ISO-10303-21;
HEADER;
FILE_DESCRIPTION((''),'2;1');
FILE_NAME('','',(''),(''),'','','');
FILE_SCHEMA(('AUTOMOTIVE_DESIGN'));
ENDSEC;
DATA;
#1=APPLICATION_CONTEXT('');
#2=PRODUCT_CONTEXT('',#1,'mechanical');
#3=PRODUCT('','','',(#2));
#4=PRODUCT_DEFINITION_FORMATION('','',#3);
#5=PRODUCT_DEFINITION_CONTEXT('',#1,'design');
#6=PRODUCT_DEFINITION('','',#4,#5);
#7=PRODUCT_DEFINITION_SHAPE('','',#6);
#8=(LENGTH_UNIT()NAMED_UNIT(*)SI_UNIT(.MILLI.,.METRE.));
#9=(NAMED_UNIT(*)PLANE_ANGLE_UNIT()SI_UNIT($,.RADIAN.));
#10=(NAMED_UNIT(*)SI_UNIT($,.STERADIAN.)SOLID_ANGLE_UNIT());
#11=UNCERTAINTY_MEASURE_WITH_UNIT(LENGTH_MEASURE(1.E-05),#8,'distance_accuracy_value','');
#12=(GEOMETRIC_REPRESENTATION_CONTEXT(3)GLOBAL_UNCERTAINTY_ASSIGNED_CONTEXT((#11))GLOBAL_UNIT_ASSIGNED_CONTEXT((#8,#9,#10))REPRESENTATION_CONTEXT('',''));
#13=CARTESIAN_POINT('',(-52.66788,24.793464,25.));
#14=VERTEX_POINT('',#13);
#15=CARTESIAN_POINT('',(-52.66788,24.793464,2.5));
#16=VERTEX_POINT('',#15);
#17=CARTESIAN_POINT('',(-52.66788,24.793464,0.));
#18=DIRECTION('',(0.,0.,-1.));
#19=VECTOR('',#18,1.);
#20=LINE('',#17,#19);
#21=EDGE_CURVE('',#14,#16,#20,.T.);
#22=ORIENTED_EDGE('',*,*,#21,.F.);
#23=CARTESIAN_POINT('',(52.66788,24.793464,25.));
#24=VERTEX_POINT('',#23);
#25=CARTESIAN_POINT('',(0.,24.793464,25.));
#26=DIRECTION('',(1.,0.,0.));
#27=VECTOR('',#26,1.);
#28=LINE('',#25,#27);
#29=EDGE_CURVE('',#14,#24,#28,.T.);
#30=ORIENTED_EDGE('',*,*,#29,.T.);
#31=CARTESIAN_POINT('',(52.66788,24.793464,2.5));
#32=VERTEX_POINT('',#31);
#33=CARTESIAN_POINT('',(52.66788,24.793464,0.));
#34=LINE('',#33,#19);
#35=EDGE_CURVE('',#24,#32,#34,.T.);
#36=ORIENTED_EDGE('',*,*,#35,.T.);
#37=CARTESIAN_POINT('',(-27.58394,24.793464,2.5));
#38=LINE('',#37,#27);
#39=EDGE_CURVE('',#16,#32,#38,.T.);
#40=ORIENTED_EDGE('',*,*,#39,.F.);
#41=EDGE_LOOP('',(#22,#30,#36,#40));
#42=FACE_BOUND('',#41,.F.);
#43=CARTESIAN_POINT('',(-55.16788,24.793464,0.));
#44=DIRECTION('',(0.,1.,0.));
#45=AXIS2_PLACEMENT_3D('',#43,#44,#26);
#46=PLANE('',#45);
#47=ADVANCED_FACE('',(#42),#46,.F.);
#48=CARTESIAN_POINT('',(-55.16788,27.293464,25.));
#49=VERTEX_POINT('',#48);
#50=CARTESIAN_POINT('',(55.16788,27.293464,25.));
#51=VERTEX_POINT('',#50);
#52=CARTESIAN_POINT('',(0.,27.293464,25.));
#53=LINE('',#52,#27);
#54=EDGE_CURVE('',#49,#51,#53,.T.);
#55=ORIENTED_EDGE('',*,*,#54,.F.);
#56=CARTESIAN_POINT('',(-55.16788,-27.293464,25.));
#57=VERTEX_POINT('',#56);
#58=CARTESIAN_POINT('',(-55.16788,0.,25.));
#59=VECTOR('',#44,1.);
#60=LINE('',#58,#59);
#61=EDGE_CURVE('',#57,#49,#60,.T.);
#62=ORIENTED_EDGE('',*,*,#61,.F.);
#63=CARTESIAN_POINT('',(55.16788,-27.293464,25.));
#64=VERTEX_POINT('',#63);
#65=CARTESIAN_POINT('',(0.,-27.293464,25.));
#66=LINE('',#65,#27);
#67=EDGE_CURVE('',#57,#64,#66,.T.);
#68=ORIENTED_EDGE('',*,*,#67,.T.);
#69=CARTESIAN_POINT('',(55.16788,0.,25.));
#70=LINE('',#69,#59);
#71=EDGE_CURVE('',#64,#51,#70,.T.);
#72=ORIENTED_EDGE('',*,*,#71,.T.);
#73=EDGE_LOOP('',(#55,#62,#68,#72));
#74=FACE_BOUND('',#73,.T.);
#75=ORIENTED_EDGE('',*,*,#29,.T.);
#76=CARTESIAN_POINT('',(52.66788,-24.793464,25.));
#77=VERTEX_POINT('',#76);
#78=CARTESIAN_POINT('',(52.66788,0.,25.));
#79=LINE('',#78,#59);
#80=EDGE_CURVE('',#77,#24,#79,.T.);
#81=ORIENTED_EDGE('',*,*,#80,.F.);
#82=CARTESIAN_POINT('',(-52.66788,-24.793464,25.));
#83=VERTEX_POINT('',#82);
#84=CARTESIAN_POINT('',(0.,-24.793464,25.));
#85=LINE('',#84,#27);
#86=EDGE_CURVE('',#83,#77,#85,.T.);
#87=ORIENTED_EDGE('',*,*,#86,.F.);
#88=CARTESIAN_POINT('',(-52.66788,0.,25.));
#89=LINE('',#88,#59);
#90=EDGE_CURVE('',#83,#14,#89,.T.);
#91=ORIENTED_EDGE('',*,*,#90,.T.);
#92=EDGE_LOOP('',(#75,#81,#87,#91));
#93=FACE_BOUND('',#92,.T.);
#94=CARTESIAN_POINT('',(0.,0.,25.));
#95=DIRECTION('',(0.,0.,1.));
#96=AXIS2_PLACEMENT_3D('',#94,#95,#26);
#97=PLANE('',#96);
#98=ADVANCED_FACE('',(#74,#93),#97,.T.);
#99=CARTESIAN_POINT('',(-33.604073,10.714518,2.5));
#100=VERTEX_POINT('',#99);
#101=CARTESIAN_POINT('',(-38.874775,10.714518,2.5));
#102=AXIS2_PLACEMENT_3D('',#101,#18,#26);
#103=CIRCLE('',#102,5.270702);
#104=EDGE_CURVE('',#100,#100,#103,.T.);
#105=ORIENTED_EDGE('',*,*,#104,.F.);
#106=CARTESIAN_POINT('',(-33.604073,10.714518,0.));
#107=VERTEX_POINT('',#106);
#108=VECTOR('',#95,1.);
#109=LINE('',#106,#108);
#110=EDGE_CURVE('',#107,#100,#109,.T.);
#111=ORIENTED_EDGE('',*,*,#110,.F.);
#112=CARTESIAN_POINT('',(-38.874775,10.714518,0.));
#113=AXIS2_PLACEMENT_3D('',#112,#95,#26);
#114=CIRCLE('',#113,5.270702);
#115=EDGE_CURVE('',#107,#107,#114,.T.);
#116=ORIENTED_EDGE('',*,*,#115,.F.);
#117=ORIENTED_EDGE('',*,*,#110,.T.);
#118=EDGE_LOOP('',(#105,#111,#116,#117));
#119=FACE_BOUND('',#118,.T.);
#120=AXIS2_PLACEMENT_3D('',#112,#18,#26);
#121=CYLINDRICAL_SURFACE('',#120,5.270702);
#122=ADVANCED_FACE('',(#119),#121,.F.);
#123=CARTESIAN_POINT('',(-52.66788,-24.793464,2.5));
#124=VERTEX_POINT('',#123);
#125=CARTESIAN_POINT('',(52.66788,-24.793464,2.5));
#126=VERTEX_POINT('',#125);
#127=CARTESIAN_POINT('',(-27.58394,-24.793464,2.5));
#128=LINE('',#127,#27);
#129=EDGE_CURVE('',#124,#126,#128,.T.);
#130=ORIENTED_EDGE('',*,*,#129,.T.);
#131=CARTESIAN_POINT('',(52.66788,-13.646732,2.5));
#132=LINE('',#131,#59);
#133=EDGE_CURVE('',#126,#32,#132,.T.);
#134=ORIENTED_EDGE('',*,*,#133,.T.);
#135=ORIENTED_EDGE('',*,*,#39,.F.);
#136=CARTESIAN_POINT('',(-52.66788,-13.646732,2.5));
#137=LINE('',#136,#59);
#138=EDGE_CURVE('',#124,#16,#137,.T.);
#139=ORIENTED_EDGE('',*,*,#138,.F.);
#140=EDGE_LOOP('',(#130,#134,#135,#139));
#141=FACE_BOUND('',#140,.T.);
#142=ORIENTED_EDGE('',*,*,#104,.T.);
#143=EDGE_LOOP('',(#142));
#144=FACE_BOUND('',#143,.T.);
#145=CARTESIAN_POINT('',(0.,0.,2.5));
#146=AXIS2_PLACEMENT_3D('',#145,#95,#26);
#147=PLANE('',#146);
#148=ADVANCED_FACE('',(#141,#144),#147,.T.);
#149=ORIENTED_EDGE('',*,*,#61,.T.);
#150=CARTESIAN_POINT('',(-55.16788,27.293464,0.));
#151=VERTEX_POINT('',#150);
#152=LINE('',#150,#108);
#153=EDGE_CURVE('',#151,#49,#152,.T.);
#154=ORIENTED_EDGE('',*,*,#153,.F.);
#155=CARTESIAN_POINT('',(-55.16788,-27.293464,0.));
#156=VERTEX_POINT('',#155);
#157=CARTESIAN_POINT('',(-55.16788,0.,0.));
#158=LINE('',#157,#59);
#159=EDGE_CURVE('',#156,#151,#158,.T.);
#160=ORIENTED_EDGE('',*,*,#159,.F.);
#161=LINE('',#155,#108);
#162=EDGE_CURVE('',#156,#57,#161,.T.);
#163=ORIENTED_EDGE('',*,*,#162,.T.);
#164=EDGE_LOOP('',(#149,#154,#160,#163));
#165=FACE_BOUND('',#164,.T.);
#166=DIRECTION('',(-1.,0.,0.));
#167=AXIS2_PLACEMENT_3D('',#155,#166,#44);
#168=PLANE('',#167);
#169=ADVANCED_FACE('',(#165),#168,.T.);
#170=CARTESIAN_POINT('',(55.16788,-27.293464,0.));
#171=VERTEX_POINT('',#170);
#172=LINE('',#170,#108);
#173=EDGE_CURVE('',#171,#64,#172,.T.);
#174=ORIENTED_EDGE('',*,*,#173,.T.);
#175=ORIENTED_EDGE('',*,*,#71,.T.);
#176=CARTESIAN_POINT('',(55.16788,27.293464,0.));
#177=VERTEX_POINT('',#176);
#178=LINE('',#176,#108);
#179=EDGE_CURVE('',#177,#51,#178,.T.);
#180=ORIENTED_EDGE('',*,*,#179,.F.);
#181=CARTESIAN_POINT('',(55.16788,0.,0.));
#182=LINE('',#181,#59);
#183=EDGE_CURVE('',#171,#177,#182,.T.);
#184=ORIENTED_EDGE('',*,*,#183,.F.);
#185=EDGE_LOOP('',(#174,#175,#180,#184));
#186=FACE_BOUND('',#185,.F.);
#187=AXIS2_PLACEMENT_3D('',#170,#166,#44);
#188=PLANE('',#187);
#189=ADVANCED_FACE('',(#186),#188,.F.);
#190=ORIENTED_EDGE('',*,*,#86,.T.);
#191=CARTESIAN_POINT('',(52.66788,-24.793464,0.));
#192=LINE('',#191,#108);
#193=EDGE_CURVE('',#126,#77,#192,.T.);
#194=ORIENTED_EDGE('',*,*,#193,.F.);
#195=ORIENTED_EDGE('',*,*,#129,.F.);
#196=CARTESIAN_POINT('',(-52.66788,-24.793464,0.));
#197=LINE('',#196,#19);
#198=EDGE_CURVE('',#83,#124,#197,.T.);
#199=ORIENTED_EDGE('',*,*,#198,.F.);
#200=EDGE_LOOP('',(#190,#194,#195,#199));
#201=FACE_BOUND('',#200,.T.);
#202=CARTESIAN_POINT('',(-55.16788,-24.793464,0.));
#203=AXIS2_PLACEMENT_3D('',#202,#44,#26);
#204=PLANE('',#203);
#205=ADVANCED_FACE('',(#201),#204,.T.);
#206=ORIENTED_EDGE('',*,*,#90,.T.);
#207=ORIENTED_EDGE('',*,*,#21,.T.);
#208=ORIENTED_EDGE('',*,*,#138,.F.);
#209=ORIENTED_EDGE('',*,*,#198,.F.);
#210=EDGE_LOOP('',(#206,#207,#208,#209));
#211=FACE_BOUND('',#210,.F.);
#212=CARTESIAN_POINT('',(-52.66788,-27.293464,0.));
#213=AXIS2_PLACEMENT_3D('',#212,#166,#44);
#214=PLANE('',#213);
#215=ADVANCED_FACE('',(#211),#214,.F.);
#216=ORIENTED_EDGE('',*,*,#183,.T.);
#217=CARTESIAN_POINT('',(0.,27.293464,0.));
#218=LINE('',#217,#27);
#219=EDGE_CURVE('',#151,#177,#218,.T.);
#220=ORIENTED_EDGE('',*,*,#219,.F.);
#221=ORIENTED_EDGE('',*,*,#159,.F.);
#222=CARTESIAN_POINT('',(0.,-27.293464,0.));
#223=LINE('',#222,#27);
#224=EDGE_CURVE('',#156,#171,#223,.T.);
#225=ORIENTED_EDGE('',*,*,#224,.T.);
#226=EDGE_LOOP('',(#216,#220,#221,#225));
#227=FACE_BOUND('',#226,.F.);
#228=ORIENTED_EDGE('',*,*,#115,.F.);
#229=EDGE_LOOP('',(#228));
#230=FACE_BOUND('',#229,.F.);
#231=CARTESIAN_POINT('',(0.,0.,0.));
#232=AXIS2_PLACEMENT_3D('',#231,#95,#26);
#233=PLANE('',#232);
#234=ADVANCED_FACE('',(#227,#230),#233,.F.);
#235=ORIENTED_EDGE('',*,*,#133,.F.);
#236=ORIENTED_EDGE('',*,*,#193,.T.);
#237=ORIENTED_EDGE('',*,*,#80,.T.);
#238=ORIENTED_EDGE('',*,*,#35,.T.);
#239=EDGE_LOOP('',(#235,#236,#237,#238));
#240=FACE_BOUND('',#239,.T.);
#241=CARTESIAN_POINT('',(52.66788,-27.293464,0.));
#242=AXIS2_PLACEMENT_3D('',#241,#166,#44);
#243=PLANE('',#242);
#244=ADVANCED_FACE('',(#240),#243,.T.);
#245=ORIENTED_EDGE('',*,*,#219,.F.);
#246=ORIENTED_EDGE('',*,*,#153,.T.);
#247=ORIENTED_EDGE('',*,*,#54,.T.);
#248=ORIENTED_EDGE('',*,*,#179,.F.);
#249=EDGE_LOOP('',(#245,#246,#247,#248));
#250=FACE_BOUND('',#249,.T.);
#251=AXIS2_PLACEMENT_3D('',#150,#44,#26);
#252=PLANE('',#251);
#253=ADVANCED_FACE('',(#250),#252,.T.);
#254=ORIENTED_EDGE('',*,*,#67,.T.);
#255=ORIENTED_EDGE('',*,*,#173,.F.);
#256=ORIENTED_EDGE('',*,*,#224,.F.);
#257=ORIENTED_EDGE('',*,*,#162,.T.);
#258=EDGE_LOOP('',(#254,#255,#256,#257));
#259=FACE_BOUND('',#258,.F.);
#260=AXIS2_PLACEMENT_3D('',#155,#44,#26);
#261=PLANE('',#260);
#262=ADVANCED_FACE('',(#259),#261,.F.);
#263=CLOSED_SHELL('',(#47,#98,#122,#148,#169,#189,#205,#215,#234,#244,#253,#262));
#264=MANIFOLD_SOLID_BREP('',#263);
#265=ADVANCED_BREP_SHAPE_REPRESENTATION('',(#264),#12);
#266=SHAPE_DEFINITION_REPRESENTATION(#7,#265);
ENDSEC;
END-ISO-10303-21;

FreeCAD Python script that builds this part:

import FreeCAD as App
import Part
import Sketcher

V = App.Vector
Q = App.Units.Quantity


def faces_at(feature, points):
    """Names of the faces that lie closest to the given points."""
    faces = feature.Shape.Faces
    near = lambda p: min(range(len(faces)), key=lambda i: faces[i].distToShape(Part.Vertex(*p))[0])
    return sorted({f"Face{near(p) + 1}" for p in points})


def add_polygon(sketch, points):
    """Adds a closed chain of lines whose ends are joined by coincident constraints."""
    first, n = sketch.GeometryCount, len(points)
    for a, b in zip(points, points[1:] + points[:1]):
        sketch.addGeometry(Part.LineSegment(App.Vector(*a, 0), App.Vector(*b, 0)), False)
    for i in range(n):
        sketch.addConstraint(Sketcher.Constraint("Coincident", first + i, 2, first + (i + 1) % n, 1))

doc = App.newDocument("Part")
body = doc.addObject("PartDesign::Body", "Body")

sketch1 = body.newObject("Sketcher::SketchObject", "Sketch")
sketch1.AttachmentSupport = (doc.getObject("XY_Plane"), [""])
sketch1.MapMode = "FlatFace"
add_polygon(sketch1, [(-55.16788, 27.293464), (-55.16788, -27.293464), (55.16788, -27.293464), (55.16788, 27.293464)])
sketch1.addConstraint([
    Sketcher.Constraint("Vertical", 0),
    Sketcher.Constraint("Horizontal", 1),
    Sketcher.Constraint("Vertical", 2),
    Sketcher.Constraint("Horizontal", 3),
    Sketcher.Constraint("Symmetric", 0, 2, 2, 2, -1, 1),
    Sketcher.Constraint("DistanceX", 1, 1, 1, 2, Q("110.33576 mm")),
    Sketcher.Constraint("DistanceY", 0, 2, 0, 1, Q("54.586928 mm")),
])
pad1 = body.newObject("PartDesign::Pad", "Pad")
pad1.Profile = sketch1
pad1.Length = 25
doc.recompute()

thickness = body.newObject("PartDesign::Thickness", "Thickness")
thickness.Base = (pad1, faces_at(pad1, [(0, 0, 25)]))
thickness.Value = 2.5
thickness.Reversed = True
thickness.Join = "Arc"

sketch2 = body.newObject("Sketcher::SketchObject", "Sketch001")
sketch2.AttachmentSupport = (doc.getObject("XY_Plane"), [""])
sketch2.MapMode = "FlatFace"
sketch2.addGeometry(Part.Circle(V(-38.874775, 10.714518, 0), V(0, 0, 1), 5.270702), False)
sketch2.addConstraint([
    Sketcher.Constraint("Diameter", 0, Q("10.541404 mm")),
    Sketcher.Constraint("DistanceX", 0, 3, -1, 1, Q("38.874775 mm")),
    Sketcher.Constraint("DistanceY", -1, 1, 0, 3, Q("10.714518 mm")),
])
pocket1 = body.newObject("PartDesign::Pocket", "Pocket")
pocket1.Profile = sketch2
pocket1.Type = "ThroughAll"
pocket1.Reversed = True

doc.recompute()
